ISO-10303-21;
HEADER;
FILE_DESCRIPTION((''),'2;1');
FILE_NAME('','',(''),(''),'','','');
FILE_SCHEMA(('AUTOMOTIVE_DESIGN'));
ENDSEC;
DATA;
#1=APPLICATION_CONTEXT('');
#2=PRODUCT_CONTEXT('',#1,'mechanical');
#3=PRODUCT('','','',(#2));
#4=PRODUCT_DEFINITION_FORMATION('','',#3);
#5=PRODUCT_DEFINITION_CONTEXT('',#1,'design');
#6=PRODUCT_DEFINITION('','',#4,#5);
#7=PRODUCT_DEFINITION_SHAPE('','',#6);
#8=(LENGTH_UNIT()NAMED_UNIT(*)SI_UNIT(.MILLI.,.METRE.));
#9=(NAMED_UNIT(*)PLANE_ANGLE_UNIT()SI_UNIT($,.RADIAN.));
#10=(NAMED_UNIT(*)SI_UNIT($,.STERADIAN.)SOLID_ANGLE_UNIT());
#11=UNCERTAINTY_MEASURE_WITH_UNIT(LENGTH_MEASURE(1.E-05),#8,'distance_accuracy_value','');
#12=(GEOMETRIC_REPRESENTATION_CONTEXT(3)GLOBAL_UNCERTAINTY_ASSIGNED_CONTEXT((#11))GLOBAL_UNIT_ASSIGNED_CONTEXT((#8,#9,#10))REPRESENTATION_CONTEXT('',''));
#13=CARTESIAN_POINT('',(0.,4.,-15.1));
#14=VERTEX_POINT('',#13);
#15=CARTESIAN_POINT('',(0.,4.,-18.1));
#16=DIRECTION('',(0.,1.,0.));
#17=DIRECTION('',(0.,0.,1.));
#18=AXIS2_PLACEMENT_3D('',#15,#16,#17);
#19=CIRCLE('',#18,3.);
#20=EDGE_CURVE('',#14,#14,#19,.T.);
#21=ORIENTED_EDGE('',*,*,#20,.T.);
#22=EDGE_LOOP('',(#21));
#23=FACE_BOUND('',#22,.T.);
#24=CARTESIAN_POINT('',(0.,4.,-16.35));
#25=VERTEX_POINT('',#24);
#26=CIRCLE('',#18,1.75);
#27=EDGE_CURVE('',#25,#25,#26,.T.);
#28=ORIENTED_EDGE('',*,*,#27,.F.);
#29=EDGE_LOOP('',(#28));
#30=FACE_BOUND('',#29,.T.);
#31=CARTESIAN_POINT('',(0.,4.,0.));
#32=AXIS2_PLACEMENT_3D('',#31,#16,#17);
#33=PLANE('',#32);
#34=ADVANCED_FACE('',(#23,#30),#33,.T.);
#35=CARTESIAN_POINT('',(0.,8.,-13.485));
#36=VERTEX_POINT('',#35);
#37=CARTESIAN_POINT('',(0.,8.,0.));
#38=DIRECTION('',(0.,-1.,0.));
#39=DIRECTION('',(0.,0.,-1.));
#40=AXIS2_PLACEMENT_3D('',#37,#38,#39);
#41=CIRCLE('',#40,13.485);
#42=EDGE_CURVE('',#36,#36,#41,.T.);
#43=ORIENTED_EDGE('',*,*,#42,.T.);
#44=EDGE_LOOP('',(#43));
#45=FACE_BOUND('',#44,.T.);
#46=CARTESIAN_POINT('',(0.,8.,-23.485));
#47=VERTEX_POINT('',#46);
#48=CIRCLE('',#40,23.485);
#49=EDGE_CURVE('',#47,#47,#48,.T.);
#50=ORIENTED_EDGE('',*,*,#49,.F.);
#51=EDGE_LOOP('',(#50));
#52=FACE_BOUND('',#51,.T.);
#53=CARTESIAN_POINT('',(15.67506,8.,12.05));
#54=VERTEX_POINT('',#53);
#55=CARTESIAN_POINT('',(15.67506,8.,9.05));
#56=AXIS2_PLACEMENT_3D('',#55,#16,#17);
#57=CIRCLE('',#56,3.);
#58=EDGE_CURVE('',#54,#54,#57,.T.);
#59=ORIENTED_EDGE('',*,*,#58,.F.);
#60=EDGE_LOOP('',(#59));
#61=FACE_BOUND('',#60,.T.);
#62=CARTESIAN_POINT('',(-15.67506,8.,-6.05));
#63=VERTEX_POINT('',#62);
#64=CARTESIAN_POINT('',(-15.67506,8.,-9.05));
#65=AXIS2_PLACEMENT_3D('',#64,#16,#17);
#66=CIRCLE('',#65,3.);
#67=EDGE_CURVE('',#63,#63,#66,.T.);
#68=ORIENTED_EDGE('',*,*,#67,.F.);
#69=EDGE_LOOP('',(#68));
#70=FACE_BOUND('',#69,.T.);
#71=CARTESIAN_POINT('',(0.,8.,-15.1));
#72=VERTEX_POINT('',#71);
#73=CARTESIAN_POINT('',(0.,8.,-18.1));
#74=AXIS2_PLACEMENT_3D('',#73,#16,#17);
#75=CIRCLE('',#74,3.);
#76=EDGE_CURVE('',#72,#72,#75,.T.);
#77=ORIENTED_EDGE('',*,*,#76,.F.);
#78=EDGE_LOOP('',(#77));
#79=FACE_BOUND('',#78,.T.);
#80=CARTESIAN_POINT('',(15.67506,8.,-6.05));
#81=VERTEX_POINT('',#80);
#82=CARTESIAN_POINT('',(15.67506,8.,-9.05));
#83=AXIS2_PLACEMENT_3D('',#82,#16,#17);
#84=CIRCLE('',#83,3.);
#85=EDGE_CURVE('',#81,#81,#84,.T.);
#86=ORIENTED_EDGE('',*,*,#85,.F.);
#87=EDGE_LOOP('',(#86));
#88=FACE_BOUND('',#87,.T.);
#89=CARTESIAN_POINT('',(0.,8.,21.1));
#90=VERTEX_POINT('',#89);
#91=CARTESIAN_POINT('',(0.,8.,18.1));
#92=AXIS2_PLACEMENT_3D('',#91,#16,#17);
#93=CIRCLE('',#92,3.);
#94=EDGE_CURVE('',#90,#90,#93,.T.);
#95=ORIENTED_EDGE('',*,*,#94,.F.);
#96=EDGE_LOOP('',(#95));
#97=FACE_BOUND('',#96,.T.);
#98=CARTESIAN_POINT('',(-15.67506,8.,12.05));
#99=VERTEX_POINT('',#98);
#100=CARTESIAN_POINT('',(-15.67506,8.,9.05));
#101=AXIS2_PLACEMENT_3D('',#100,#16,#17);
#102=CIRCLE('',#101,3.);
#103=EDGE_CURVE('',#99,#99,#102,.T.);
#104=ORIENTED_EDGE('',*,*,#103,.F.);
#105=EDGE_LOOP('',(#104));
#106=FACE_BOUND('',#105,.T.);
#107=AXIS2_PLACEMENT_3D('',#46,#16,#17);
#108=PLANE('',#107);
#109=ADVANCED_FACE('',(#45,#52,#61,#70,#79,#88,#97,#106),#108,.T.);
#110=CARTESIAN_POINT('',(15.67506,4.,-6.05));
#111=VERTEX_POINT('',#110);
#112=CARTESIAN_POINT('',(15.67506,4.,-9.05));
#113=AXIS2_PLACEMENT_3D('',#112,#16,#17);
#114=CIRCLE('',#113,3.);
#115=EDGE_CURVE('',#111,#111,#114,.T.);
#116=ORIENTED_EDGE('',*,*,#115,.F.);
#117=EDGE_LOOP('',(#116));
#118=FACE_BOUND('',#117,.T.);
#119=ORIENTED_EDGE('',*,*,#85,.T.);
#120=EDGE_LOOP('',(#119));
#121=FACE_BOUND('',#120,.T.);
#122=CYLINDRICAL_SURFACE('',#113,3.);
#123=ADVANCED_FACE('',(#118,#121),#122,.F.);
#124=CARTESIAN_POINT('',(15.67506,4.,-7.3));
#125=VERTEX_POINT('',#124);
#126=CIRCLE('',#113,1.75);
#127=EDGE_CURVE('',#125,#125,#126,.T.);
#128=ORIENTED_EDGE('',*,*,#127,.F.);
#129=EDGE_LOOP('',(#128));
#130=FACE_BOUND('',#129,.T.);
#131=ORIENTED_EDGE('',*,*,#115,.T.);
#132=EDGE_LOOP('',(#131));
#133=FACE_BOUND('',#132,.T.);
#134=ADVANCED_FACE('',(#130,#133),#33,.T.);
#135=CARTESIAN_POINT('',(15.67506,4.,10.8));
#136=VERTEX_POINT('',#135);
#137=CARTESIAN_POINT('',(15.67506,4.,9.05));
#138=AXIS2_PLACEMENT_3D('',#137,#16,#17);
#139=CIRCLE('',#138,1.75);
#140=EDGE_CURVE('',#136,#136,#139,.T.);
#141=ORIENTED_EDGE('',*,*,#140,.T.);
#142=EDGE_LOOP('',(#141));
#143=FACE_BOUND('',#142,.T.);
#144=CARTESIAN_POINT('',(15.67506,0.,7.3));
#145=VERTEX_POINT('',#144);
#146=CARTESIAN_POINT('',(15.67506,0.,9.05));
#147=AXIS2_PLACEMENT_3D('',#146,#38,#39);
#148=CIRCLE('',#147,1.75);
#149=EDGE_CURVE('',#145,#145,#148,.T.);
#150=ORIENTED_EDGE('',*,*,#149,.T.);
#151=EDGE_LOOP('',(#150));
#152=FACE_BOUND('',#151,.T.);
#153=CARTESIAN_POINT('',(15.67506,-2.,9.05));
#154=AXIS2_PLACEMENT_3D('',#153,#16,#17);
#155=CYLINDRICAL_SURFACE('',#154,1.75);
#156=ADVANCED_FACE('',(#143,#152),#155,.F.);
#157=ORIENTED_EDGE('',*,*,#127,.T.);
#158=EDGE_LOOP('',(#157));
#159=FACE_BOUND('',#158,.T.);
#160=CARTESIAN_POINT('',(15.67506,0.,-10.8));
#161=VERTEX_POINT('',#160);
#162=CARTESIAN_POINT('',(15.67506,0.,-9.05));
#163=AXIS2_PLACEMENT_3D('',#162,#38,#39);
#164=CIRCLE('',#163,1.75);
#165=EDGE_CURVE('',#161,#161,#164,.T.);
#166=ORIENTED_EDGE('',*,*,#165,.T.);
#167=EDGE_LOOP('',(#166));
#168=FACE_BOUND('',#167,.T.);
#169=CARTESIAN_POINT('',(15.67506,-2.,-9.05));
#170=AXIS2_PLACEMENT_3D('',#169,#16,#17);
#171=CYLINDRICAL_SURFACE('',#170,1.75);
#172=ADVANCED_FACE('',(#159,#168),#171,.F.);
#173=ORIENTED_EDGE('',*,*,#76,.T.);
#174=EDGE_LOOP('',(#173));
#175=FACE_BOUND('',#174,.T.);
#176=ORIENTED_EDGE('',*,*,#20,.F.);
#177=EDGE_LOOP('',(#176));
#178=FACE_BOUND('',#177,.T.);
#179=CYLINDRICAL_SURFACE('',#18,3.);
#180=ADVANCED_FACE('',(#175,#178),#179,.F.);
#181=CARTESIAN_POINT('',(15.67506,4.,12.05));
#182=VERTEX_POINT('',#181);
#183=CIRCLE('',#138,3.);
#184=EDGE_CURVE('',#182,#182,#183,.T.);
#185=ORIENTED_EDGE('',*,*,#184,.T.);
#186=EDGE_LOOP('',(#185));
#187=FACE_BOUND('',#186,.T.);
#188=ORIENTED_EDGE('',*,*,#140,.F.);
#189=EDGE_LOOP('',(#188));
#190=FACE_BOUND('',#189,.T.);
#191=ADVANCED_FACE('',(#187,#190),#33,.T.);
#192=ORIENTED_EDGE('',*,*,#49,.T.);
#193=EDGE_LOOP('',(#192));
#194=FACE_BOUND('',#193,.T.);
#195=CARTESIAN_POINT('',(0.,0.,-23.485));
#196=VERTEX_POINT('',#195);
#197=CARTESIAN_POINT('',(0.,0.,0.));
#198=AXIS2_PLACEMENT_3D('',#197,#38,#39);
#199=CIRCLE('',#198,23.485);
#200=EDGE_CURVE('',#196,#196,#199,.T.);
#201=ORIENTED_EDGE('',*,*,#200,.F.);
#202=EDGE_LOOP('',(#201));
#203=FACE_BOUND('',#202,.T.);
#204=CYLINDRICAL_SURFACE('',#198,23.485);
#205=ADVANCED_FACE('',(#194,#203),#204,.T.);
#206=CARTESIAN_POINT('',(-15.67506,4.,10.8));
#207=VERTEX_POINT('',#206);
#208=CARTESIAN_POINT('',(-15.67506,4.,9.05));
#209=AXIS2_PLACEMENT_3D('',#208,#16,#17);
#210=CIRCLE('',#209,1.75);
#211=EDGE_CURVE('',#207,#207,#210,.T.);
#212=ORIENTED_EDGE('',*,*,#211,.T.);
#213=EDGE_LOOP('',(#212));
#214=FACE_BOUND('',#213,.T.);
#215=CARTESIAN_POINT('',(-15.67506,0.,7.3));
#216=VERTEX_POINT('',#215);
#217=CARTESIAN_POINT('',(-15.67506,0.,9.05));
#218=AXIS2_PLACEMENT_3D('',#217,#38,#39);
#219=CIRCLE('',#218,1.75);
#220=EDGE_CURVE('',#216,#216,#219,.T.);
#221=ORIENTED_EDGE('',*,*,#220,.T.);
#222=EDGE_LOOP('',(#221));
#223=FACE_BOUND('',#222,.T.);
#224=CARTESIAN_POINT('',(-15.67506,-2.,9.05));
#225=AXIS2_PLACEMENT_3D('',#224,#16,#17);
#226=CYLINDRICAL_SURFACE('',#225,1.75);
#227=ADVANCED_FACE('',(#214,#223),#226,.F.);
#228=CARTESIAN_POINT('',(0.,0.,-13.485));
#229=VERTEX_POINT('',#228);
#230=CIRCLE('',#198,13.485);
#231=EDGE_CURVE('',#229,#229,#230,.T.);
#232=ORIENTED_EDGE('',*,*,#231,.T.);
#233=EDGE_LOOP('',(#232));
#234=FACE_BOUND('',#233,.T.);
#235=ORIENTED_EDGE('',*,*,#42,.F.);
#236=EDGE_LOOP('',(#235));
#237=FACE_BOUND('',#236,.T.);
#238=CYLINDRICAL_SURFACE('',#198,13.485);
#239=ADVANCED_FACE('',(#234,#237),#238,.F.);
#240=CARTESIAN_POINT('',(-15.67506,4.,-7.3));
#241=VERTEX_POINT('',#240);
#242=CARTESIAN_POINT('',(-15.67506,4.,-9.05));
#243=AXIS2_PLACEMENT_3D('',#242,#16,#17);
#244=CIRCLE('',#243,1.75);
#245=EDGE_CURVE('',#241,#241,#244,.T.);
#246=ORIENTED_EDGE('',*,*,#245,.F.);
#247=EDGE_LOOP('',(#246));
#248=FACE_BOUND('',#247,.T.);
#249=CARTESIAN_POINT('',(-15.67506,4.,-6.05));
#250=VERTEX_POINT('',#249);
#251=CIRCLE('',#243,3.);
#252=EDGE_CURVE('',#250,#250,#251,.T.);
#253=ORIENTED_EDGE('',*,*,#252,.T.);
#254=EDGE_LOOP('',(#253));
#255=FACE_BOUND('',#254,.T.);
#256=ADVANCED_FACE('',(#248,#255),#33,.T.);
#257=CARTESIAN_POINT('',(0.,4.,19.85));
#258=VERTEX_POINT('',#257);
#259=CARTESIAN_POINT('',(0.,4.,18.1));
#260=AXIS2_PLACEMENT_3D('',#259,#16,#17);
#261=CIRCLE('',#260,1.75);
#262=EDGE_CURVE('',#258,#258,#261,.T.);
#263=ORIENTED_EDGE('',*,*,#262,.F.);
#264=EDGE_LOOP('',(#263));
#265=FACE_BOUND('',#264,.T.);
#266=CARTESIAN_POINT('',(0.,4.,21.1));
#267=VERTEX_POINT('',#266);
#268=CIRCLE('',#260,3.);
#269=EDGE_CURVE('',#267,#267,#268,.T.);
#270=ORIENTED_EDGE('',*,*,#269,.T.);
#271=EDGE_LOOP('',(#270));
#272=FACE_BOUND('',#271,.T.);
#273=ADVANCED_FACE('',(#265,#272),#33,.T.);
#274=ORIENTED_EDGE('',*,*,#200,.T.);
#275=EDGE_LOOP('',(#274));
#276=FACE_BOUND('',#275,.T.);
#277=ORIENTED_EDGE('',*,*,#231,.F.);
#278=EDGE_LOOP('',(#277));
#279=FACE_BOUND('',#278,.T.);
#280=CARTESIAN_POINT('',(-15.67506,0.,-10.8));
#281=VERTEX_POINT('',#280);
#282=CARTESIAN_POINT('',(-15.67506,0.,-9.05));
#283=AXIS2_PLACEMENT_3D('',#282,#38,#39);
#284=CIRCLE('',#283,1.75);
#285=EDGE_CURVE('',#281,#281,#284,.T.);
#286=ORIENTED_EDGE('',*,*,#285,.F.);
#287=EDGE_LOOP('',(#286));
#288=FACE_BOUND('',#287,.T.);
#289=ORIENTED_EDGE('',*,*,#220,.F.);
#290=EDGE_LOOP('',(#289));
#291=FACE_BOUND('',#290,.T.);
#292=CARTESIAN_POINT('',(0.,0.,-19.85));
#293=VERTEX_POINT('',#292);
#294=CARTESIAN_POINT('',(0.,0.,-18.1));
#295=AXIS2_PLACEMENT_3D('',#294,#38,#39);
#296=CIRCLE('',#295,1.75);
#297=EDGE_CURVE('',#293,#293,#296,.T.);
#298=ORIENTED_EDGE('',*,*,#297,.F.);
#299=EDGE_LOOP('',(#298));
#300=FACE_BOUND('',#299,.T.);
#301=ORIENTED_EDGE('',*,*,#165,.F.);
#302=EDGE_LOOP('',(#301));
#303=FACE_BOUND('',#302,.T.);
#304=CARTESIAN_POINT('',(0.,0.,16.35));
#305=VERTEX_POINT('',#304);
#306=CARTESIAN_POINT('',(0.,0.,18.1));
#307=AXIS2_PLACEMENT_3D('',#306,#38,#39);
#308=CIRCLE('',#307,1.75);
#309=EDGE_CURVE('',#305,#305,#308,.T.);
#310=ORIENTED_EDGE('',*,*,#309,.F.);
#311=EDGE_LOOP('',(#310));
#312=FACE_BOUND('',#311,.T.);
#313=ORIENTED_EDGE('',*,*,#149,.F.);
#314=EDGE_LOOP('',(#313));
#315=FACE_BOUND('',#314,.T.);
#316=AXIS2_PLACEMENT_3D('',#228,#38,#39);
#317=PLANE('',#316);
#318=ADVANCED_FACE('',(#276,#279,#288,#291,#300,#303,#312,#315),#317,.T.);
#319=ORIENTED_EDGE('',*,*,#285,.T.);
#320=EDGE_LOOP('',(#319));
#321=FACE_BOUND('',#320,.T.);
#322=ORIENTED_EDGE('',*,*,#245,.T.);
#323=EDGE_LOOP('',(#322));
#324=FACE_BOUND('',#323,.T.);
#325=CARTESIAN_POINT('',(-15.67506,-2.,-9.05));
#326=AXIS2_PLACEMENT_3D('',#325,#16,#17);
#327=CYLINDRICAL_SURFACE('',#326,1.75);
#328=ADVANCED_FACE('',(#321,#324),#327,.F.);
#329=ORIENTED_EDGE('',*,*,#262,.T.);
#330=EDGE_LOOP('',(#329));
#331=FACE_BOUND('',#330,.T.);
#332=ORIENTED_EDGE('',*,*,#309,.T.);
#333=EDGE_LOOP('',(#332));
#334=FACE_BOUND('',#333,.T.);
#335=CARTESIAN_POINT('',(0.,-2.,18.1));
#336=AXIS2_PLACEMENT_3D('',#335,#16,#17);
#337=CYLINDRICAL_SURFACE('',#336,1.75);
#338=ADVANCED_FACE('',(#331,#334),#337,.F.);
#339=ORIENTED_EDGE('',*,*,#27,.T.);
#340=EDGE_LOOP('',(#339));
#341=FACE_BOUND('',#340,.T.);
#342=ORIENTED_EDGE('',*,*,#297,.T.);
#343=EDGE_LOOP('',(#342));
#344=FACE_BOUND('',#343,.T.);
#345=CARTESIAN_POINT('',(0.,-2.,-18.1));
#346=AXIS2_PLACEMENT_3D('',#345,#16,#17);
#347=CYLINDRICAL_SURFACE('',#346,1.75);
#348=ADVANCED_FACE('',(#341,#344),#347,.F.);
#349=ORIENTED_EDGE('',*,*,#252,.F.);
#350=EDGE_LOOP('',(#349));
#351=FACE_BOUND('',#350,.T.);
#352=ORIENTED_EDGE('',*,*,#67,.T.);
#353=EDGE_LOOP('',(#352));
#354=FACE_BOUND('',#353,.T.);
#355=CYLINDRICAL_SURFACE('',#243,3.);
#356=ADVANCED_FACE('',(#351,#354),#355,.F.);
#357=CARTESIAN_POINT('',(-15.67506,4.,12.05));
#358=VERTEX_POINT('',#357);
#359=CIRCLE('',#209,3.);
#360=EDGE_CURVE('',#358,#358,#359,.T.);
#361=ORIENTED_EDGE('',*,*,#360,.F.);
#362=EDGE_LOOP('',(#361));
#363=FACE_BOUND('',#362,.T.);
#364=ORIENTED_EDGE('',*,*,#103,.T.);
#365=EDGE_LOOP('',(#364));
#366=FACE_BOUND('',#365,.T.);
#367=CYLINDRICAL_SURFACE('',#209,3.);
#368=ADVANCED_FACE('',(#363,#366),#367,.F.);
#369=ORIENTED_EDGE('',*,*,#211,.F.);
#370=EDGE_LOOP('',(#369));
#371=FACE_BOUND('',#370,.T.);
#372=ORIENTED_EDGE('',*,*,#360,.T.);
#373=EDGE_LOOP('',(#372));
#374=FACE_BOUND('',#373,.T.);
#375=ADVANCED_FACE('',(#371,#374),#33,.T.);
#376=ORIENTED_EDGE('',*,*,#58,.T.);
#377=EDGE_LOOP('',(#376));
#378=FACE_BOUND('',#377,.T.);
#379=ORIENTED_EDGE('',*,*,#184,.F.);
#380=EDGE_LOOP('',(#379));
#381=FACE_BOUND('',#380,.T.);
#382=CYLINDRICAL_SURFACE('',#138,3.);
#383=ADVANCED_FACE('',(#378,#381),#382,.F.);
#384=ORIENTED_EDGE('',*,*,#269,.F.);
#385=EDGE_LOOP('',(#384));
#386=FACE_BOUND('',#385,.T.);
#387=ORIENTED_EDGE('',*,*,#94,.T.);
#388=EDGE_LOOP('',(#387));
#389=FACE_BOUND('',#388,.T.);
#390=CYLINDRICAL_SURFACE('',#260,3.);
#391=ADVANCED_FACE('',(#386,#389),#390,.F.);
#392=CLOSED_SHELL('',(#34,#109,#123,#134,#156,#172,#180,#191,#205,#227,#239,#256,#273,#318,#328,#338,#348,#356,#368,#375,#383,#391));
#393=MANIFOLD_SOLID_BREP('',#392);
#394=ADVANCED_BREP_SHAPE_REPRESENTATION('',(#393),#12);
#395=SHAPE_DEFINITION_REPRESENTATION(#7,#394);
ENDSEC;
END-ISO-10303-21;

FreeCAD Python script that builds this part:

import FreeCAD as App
import Part
import Sketcher
from FreeCAD import Vector
Q = App.Units.Quantity


def add_polygon(sketch, points):
    """Adds a closed chain of lines whose ends are joined by coincident constraints."""
    first, n = sketch.GeometryCount, len(points)
    for a, b in zip(points, points[1:] + points[:1]):
        sketch.addGeometry(Part.LineSegment(App.Vector(*a, 0), App.Vector(*b, 0)), False)
    for i in range(n):
        sketch.addConstraint(Sketcher.Constraint("Coincident", first + i, 2, first + (i + 1) % n, 1))

doc = App.newDocument("Part")
body = doc.addObject("PartDesign::Body", "Body")

sketch1 = body.newObject("Sketcher::SketchObject", "Sketch")
sketch1.AttachmentSupport = (doc.getObject("YZ_Plane"), [""])
sketch1.MapMode = "FlatFace"
add_polygon(sketch1, [(8, -13), (0, -13), (0, -23), (8, -23)])
sketch1.addConstraint(Sketcher.Constraint("Horizontal", 0))
sketch1.addConstraint(Sketcher.Constraint("Vertical", 1))
sketch1.addConstraint(Sketcher.Constraint("Horizontal", 2))
sketch1.addConstraint(Sketcher.Constraint("Vertical", 3))
sketch1.addConstraint(Sketcher.Constraint("PointOnObject", 0, 2, -2))
sketch1.addConstraint(Sketcher.Constraint("DistanceX", 0, 2, 0, 1, Q("8 mm")))
sketch1.addConstraint(Sketcher.Constraint("DistanceY", 1, 2, 1, 1, Q("10 mm")))
sketch1.addConstraint(Sketcher.Constraint("DistanceY", 0, 2, -1, 1, Q("13.485 mm")))
revolution = body.newObject("PartDesign::Revolution", "Revolution")
revolution.Profile = sketch1
revolution.ReferenceAxis = (sketch1, ["H_Axis"])
revolution.Angle = 360

sketch2 = body.newObject("Sketcher::SketchObject", "Sketch001")
sketch2.AttachmentSupport = (doc.getObject("XZ_Plane"), [""])
sketch2.MapMode = "FlatFace"
sketch2.AttachmentOffset = App.Placement(Vector(0, 0, -8), App.Rotation())
sketch2.addGeometry(Part.Circle(Vector(0, -18.1, 0), Vector(0, 0, 1), 1.8), False)
sketch2.addGeometry(Part.Circle(Vector(-15.7, -9.1, 0), Vector(0, 0, 1), 1.8), False)
sketch2.addGeometry(Part.Circle(Vector(-15.7, 9.1, 0), Vector(0, 0, 1), 1.8), False)
sketch2.addGeometry(Part.Circle(Vector(0, 18.1, 0), Vector(0, 0, 1), 1.8), False)
sketch2.addGeometry(Part.Circle(Vector(15.7, 9.1, 0), Vector(0, 0, 1), 1.8), False)
sketch2.addGeometry(Part.Circle(Vector(15.7, -9.1, 0), Vector(0, 0, 1), 1.8), False)
sketch2.addConstraint(Sketcher.Constraint("Equal", 0, 1))
sketch2.addConstraint(Sketcher.Constraint("Equal", 1, 2))
sketch2.addConstraint(Sketcher.Constraint("Equal", 2, 3))
sketch2.addConstraint(Sketcher.Constraint("Equal", 3, 4))
sketch2.addConstraint(Sketcher.Constraint("Equal", 4, 5))
sketch2.addConstraint(Sketcher.Constraint("Symmetric", 0, 3, 3, 3, -1, 1))
sketch2.addConstraint(Sketcher.Constraint("Symmetric", 1, 3, 4, 3, -1, 1))
sketch2.addConstraint(Sketcher.Constraint("Symmetric", 2, 3, 5, 3, -1, 1))
sketch2.addConstraint(Sketcher.Constraint("Symmetric", 2, 3, 4, 3, -2))
sketch2.addConstraint(Sketcher.Constraint("PointOnObject", 0, 3, -2))
sketch2.addConstraint(Sketcher.Constraint("Diameter", 0, Q("3.5 mm")))
sketch2.addConstraint(Sketcher.Constraint("DistanceY", 0, 3, -1, 1, Q("18.1 mm")))
sketch2.addConstraint(Sketcher.Constraint("DistanceY", 1, 3, 2, 3, Q("18.1 mm")))
sketch2.addConstraint(Sketcher.Constraint("DistanceX", 1, 3, -1, 1, Q("15.67506 mm")))
pocket1 = body.newObject("PartDesign::Pocket", "Pocket")
pocket1.Profile = sketch2
pocket1.Length = 10
pocket1.Reversed = True

sketch3 = body.newObject("Sketcher::SketchObject", "Sketch002")
sketch3.AttachmentSupport = (doc.getObject("XZ_Plane"), [""])
sketch3.MapMode = "FlatFace"
sketch3.AttachmentOffset = App.Placement(Vector(0, 0, -8), App.Rotation())
sketch3.addGeometry(Part.Circle(Vector(-15.7, -9.1, 0), Vector(0, 0, 1), 3), False)
sketch3.addGeometry(Part.Circle(Vector(-15.7, -9.1, 0), Vector(0, 0, 1), 1.8), False)
sketch3.addGeometry(Part.Circle(Vector(0, -18.1, 0), Vector(0, 0, 1), 3), False)
sketch3.addGeometry(Part.Circle(Vector(0, -18.1, 0), Vector(0, 0, 1), 1.8), False)
sketch3.addGeometry(Part.Circle(Vector(15.7, -9.1, 0), Vector(0, 0, 1), 3), False)
sketch3.addGeometry(Part.Circle(Vector(15.7, -9.1, 0), Vector(0, 0, 1), 1.8), False)
sketch3.addGeometry(Part.Circle(Vector(-15.7, 9.1, 0), Vector(0, 0, 1), 3), False)
sketch3.addGeometry(Part.Circle(Vector(-15.7, 9.1, 0), Vector(0, 0, 1), 1.8), False)
sketch3.addGeometry(Part.Circle(Vector(0, 18.1, 0), Vector(0, 0, 1), 3), False)
sketch3.addGeometry(Part.Circle(Vector(0, 18.1, 0), Vector(0, 0, 1), 1.8), False)
sketch3.addGeometry(Part.Circle(Vector(15.7, 9.1, 0), Vector(0, 0, 1), 3), False)
sketch3.addGeometry(Part.Circle(Vector(15.7, 9.1, 0), Vector(0, 0, 1), 1.8), False)
sketch3.addConstraint(Sketcher.Constraint("Coincident", 1, 3, 0, 3))
sketch3.addConstraint(Sketcher.Constraint("Coincident", 3, 3, 2, 3))
sketch3.addConstraint(Sketcher.Constraint("Coincident", 5, 3, 4, 3))
sketch3.addConstraint(Sketcher.Constraint("Coincident", 7, 3, 6, 3))
sketch3.addConstraint(Sketcher.Constraint("Coincident", 9, 3, 8, 3))
sketch3.addConstraint(Sketcher.Constraint("Coincident", 11, 3, 10, 3))
sketch3.addConstraint(Sketcher.Constraint("Equal", 0, 2))
sketch3.addConstraint(Sketcher.Constraint("Equal", 1, 3))
sketch3.addConstraint(Sketcher.Constraint("Equal", 2, 4))
sketch3.addConstraint(Sketcher.Constraint("Equal", 3, 5))
sketch3.addConstraint(Sketcher.Constraint("Equal", 4, 6))
sketch3.addConstraint(Sketcher.Constraint("Equal", 5, 7))
sketch3.addConstraint(Sketcher.Constraint("Equal", 6, 8))
sketch3.addConstraint(Sketcher.Constraint("Equal", 7, 9))
sketch3.addConstraint(Sketcher.Constraint("Equal", 8, 10))
sketch3.addConstraint(Sketcher.Constraint("Equal", 9, 11))
sketch3.addConstraint(Sketcher.Constraint("Symmetric", 4, 3, 6, 3, -1, 1))
sketch3.addConstraint(Sketcher.Constraint("Symmetric", 2, 3, 8, 3, -1, 1))
sketch3.addConstraint(Sketcher.Constraint("Symmetric", 0, 3, 10, 3, -1, 1))
sketch3.addConstraint(Sketcher.Constraint("Symmetric", 0, 3, 4, 3, -2))
sketch3.addConstraint(Sketcher.Constraint("PointOnObject", 2, 3, -2))
sketch3.addConstraint(Sketcher.Constraint("Diameter", 0, Q("6 mm")))
sketch3.addConstraint(Sketcher.Constraint("Diameter", 1, Q("3.5 mm")))
sketch3.addConstraint(Sketcher.Constraint("DistanceY", 2, 3, -1, 1, Q("18.1 mm")))
sketch3.addConstraint(Sketcher.Constraint("DistanceY", 0, 3, 6, 3, Q("18.1 mm")))
sketch3.addConstraint(Sketcher.Constraint("DistanceX", 0, 3, -1, 1, Q("15.67506 mm")))
pocket2 = body.newObject("PartDesign::Pocket", "Pocket001")
pocket2.Profile = sketch3
pocket2.Length = 4
pocket2.Reversed = True

doc.recompute()
